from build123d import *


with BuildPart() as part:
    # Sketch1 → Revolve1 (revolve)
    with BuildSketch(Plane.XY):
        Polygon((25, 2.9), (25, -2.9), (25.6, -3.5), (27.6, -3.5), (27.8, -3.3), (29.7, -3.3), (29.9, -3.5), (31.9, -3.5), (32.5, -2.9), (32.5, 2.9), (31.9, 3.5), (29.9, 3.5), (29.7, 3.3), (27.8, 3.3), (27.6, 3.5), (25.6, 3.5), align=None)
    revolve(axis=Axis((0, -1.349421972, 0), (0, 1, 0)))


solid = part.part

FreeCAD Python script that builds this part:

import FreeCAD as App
import Part
import Sketcher

doc = App.newDocument("Part")
body = doc.addObject("PartDesign::Body", "Body")

# Sketch on XY plane
sketch1 = doc.addObject("Sketcher::SketchObject", "Sketch")
body.addObject(sketch1)
sketch1.AttachmentSupport = (doc.XY_Plane, [""])
sketch1.MapMode = "FlatFace"
sketch1.addGeometry(Part.LineSegment(App.Vector(25, 2.9, 0), App.Vector(25, -2.9, 0)), False)
sketch1.addGeometry(Part.LineSegment(App.Vector(25, -2.9, 0), App.Vector(25.6, -3.5, 0)), False)
sketch1.addGeometry(Part.LineSegment(App.Vector(25.6, -3.5, 0), App.Vector(27.6, -3.5, 0)), False)
sketch1.addGeometry(Part.LineSegment(App.Vector(27.6, -3.5, 0), App.Vector(27.8, -3.3, 0)), False)
sketch1.addGeometry(Part.LineSegment(App.Vector(27.8, -3.3, 0), App.Vector(29.7, -3.3, 0)), False)
sketch1.addGeometry(Part.LineSegment(App.Vector(29.7, -3.3, 0), App.Vector(29.9, -3.5, 0)), False)
sketch1.addGeometry(Part.LineSegment(App.Vector(29.9, -3.5, 0), App.Vector(31.9, -3.5, 0)), False)
sketch1.addGeometry(Part.LineSegment(App.Vector(31.9, -3.5, 0), App.Vector(32.5, -2.9, 0)), False)
sketch1.addGeometry(Part.LineSegment(App.Vector(32.5, -2.9, 0), App.Vector(32.5, 2.9, 0)), False)
sketch1.addGeometry(Part.LineSegment(App.Vector(32.5, 2.9, 0), App.Vector(31.9, 3.5, 0)), False)
sketch1.addGeometry(Part.LineSegment(App.Vector(31.9, 3.5, 0), App.Vector(29.9, 3.5, 0)), False)
sketch1.addGeometry(Part.LineSegment(App.Vector(29.9, 3.5, 0), App.Vector(29.7, 3.3, 0)), False)
sketch1.addGeometry(Part.LineSegment(App.Vector(29.7, 3.3, 0), App.Vector(27.8, 3.3, 0)), False)
sketch1.addGeometry(Part.LineSegment(App.Vector(27.8, 3.3, 0), App.Vector(27.6, 3.5, 0)), False)
sketch1.addGeometry(Part.LineSegment(App.Vector(27.6, 3.5, 0), App.Vector(25.6, 3.5, 0)), False)
sketch1.addGeometry(Part.LineSegment(App.Vector(25.6, 3.5, 0), App.Vector(25, 2.9, 0)), False)
sketch1.addConstraint(Sketcher.Constraint("Coincident", 0, 2, 1, 1))
sketch1.addConstraint(Sketcher.Constraint("Coincident", 1, 2, 2, 1))
sketch1.addConstraint(Sketcher.Constraint("Coincident", 2, 2, 3, 1))
sketch1.addConstraint(Sketcher.Constraint("Coincident", 3, 2, 4, 1))
sketch1.addConstraint(Sketcher.Constraint("Coincident", 4, 2, 5, 1))
sketch1.addConstraint(Sketcher.Constraint("Coincident", 5, 2, 6, 1))
sketch1.addConstraint(Sketcher.Constraint("Coincident", 6, 2, 7, 1))
sketch1.addConstraint(Sketcher.Constraint("Coincident", 7, 2, 8, 1))
sketch1.addConstraint(Sketcher.Constraint("Coincident", 8, 2, 9, 1))
sketch1.addConstraint(Sketcher.Constraint("Coincident", 9, 2, 10, 1))
sketch1.addConstraint(Sketcher.Constraint("Coincident", 10, 2, 11, 1))
sketch1.addConstraint(Sketcher.Constraint("Coincident", 11, 2, 12, 1))
sketch1.addConstraint(Sketcher.Constraint("Coincident", 12, 2, 13, 1))
sketch1.addConstraint(Sketcher.Constraint("Coincident", 13, 2, 14, 1))
sketch1.addConstraint(Sketcher.Constraint("Coincident", 14, 2, 15, 1))
sketch1.addConstraint(Sketcher.Constraint("Coincident", 15, 2, 0, 1))
sketch1.addConstraint(Sketcher.Constraint("Vertical", 0))
sketch1.addConstraint(Sketcher.Constraint("Horizontal", 2))
sketch1.addConstraint(Sketcher.Constraint("Horizontal", 4))
sketch1.addConstraint(Sketcher.Constraint("Horizontal", 6))
sketch1.addConstraint(Sketcher.Constraint("Vertical", 8))
sketch1.addConstraint(Sketcher.Constraint("Horizontal", 10))
sketch1.addConstraint(Sketcher.Constraint("Horizontal", 12))
sketch1.addConstraint(Sketcher.Constraint("Horizontal", 14))
sketch1.addConstraint(Sketcher.Constraint("Symmetric", 6, 2, 9, 2, -1))
sketch1.addConstraint(Sketcher.Constraint("Symmetric", 4, 2, 11, 2, -1))
sketch1.addConstraint(Sketcher.Constraint("Symmetric", 2, 2, 13, 2, -1))
sketch1.addConstraint(Sketcher.Constraint("Perpendicular", 1, 3))
sketch1.addConstraint(Sketcher.Constraint("Perpendicular", 3, 5))
sketch1.addConstraint(Sketcher.Constraint("Perpendicular", 5, 7))
sketch1.addConstraint(Sketcher.Constraint("Perpendicular", 7, 9))
sketch1.addConstraint(Sketcher.Constraint("Perpendicular", 9, 11))
sketch1.addConstraint(Sketcher.Constraint("Perpendicular", 11, 13))
sketch1.addConstraint(Sketcher.Constraint("Perpendicular", 13, 15))
sketch1.addConstraint(Sketcher.Constraint("Horizontal", 2, 2, 5, 2))
sketch1.addConstraint(Sketcher.Constraint("Horizontal", 0, 2, 7, 2))
sketch1.addConstraint(Sketcher.Constraint("Horizontal", 8, 2, 15, 2))
sketch1.addConstraint(Sketcher.Constraint("Vertical", 5, 2, 10, 2))
sketch1.addConstraint(Sketcher.Constraint("Equal", 2, 6))
sketch1.addConstraint(Sketcher.Constraint("DistanceX", 2, 1, 2, 2, 2.0))
sketch1.addConstraint(Sketcher.Constraint("DistanceX", 4, 1, 4, 2, 1.9))
sketch1.addConstraint(Sketcher.Constraint("DistanceY", 0, 2, 0, 1, 5.8))
sketch1.addConstraint(Sketcher.Constraint("DistanceX", -1, 1, 0, 2, 25.0))
sketch1.addConstraint(Sketcher.Constraint("DistanceY", 6, 2, 9, 2, 7.0))
sketch1.addConstraint(Sketcher.Constraint("DistanceX", -1, 1, 3, 2, 27.8))
revolution = doc.addObject("PartDesign::Revolution", "Revolution")
body.addObject(revolution)
revolution.Profile = sketch1
revolution.ReferenceAxis = (sketch1, ["V_Axis"])
revolution.Angle = 360

doc.recompute()
